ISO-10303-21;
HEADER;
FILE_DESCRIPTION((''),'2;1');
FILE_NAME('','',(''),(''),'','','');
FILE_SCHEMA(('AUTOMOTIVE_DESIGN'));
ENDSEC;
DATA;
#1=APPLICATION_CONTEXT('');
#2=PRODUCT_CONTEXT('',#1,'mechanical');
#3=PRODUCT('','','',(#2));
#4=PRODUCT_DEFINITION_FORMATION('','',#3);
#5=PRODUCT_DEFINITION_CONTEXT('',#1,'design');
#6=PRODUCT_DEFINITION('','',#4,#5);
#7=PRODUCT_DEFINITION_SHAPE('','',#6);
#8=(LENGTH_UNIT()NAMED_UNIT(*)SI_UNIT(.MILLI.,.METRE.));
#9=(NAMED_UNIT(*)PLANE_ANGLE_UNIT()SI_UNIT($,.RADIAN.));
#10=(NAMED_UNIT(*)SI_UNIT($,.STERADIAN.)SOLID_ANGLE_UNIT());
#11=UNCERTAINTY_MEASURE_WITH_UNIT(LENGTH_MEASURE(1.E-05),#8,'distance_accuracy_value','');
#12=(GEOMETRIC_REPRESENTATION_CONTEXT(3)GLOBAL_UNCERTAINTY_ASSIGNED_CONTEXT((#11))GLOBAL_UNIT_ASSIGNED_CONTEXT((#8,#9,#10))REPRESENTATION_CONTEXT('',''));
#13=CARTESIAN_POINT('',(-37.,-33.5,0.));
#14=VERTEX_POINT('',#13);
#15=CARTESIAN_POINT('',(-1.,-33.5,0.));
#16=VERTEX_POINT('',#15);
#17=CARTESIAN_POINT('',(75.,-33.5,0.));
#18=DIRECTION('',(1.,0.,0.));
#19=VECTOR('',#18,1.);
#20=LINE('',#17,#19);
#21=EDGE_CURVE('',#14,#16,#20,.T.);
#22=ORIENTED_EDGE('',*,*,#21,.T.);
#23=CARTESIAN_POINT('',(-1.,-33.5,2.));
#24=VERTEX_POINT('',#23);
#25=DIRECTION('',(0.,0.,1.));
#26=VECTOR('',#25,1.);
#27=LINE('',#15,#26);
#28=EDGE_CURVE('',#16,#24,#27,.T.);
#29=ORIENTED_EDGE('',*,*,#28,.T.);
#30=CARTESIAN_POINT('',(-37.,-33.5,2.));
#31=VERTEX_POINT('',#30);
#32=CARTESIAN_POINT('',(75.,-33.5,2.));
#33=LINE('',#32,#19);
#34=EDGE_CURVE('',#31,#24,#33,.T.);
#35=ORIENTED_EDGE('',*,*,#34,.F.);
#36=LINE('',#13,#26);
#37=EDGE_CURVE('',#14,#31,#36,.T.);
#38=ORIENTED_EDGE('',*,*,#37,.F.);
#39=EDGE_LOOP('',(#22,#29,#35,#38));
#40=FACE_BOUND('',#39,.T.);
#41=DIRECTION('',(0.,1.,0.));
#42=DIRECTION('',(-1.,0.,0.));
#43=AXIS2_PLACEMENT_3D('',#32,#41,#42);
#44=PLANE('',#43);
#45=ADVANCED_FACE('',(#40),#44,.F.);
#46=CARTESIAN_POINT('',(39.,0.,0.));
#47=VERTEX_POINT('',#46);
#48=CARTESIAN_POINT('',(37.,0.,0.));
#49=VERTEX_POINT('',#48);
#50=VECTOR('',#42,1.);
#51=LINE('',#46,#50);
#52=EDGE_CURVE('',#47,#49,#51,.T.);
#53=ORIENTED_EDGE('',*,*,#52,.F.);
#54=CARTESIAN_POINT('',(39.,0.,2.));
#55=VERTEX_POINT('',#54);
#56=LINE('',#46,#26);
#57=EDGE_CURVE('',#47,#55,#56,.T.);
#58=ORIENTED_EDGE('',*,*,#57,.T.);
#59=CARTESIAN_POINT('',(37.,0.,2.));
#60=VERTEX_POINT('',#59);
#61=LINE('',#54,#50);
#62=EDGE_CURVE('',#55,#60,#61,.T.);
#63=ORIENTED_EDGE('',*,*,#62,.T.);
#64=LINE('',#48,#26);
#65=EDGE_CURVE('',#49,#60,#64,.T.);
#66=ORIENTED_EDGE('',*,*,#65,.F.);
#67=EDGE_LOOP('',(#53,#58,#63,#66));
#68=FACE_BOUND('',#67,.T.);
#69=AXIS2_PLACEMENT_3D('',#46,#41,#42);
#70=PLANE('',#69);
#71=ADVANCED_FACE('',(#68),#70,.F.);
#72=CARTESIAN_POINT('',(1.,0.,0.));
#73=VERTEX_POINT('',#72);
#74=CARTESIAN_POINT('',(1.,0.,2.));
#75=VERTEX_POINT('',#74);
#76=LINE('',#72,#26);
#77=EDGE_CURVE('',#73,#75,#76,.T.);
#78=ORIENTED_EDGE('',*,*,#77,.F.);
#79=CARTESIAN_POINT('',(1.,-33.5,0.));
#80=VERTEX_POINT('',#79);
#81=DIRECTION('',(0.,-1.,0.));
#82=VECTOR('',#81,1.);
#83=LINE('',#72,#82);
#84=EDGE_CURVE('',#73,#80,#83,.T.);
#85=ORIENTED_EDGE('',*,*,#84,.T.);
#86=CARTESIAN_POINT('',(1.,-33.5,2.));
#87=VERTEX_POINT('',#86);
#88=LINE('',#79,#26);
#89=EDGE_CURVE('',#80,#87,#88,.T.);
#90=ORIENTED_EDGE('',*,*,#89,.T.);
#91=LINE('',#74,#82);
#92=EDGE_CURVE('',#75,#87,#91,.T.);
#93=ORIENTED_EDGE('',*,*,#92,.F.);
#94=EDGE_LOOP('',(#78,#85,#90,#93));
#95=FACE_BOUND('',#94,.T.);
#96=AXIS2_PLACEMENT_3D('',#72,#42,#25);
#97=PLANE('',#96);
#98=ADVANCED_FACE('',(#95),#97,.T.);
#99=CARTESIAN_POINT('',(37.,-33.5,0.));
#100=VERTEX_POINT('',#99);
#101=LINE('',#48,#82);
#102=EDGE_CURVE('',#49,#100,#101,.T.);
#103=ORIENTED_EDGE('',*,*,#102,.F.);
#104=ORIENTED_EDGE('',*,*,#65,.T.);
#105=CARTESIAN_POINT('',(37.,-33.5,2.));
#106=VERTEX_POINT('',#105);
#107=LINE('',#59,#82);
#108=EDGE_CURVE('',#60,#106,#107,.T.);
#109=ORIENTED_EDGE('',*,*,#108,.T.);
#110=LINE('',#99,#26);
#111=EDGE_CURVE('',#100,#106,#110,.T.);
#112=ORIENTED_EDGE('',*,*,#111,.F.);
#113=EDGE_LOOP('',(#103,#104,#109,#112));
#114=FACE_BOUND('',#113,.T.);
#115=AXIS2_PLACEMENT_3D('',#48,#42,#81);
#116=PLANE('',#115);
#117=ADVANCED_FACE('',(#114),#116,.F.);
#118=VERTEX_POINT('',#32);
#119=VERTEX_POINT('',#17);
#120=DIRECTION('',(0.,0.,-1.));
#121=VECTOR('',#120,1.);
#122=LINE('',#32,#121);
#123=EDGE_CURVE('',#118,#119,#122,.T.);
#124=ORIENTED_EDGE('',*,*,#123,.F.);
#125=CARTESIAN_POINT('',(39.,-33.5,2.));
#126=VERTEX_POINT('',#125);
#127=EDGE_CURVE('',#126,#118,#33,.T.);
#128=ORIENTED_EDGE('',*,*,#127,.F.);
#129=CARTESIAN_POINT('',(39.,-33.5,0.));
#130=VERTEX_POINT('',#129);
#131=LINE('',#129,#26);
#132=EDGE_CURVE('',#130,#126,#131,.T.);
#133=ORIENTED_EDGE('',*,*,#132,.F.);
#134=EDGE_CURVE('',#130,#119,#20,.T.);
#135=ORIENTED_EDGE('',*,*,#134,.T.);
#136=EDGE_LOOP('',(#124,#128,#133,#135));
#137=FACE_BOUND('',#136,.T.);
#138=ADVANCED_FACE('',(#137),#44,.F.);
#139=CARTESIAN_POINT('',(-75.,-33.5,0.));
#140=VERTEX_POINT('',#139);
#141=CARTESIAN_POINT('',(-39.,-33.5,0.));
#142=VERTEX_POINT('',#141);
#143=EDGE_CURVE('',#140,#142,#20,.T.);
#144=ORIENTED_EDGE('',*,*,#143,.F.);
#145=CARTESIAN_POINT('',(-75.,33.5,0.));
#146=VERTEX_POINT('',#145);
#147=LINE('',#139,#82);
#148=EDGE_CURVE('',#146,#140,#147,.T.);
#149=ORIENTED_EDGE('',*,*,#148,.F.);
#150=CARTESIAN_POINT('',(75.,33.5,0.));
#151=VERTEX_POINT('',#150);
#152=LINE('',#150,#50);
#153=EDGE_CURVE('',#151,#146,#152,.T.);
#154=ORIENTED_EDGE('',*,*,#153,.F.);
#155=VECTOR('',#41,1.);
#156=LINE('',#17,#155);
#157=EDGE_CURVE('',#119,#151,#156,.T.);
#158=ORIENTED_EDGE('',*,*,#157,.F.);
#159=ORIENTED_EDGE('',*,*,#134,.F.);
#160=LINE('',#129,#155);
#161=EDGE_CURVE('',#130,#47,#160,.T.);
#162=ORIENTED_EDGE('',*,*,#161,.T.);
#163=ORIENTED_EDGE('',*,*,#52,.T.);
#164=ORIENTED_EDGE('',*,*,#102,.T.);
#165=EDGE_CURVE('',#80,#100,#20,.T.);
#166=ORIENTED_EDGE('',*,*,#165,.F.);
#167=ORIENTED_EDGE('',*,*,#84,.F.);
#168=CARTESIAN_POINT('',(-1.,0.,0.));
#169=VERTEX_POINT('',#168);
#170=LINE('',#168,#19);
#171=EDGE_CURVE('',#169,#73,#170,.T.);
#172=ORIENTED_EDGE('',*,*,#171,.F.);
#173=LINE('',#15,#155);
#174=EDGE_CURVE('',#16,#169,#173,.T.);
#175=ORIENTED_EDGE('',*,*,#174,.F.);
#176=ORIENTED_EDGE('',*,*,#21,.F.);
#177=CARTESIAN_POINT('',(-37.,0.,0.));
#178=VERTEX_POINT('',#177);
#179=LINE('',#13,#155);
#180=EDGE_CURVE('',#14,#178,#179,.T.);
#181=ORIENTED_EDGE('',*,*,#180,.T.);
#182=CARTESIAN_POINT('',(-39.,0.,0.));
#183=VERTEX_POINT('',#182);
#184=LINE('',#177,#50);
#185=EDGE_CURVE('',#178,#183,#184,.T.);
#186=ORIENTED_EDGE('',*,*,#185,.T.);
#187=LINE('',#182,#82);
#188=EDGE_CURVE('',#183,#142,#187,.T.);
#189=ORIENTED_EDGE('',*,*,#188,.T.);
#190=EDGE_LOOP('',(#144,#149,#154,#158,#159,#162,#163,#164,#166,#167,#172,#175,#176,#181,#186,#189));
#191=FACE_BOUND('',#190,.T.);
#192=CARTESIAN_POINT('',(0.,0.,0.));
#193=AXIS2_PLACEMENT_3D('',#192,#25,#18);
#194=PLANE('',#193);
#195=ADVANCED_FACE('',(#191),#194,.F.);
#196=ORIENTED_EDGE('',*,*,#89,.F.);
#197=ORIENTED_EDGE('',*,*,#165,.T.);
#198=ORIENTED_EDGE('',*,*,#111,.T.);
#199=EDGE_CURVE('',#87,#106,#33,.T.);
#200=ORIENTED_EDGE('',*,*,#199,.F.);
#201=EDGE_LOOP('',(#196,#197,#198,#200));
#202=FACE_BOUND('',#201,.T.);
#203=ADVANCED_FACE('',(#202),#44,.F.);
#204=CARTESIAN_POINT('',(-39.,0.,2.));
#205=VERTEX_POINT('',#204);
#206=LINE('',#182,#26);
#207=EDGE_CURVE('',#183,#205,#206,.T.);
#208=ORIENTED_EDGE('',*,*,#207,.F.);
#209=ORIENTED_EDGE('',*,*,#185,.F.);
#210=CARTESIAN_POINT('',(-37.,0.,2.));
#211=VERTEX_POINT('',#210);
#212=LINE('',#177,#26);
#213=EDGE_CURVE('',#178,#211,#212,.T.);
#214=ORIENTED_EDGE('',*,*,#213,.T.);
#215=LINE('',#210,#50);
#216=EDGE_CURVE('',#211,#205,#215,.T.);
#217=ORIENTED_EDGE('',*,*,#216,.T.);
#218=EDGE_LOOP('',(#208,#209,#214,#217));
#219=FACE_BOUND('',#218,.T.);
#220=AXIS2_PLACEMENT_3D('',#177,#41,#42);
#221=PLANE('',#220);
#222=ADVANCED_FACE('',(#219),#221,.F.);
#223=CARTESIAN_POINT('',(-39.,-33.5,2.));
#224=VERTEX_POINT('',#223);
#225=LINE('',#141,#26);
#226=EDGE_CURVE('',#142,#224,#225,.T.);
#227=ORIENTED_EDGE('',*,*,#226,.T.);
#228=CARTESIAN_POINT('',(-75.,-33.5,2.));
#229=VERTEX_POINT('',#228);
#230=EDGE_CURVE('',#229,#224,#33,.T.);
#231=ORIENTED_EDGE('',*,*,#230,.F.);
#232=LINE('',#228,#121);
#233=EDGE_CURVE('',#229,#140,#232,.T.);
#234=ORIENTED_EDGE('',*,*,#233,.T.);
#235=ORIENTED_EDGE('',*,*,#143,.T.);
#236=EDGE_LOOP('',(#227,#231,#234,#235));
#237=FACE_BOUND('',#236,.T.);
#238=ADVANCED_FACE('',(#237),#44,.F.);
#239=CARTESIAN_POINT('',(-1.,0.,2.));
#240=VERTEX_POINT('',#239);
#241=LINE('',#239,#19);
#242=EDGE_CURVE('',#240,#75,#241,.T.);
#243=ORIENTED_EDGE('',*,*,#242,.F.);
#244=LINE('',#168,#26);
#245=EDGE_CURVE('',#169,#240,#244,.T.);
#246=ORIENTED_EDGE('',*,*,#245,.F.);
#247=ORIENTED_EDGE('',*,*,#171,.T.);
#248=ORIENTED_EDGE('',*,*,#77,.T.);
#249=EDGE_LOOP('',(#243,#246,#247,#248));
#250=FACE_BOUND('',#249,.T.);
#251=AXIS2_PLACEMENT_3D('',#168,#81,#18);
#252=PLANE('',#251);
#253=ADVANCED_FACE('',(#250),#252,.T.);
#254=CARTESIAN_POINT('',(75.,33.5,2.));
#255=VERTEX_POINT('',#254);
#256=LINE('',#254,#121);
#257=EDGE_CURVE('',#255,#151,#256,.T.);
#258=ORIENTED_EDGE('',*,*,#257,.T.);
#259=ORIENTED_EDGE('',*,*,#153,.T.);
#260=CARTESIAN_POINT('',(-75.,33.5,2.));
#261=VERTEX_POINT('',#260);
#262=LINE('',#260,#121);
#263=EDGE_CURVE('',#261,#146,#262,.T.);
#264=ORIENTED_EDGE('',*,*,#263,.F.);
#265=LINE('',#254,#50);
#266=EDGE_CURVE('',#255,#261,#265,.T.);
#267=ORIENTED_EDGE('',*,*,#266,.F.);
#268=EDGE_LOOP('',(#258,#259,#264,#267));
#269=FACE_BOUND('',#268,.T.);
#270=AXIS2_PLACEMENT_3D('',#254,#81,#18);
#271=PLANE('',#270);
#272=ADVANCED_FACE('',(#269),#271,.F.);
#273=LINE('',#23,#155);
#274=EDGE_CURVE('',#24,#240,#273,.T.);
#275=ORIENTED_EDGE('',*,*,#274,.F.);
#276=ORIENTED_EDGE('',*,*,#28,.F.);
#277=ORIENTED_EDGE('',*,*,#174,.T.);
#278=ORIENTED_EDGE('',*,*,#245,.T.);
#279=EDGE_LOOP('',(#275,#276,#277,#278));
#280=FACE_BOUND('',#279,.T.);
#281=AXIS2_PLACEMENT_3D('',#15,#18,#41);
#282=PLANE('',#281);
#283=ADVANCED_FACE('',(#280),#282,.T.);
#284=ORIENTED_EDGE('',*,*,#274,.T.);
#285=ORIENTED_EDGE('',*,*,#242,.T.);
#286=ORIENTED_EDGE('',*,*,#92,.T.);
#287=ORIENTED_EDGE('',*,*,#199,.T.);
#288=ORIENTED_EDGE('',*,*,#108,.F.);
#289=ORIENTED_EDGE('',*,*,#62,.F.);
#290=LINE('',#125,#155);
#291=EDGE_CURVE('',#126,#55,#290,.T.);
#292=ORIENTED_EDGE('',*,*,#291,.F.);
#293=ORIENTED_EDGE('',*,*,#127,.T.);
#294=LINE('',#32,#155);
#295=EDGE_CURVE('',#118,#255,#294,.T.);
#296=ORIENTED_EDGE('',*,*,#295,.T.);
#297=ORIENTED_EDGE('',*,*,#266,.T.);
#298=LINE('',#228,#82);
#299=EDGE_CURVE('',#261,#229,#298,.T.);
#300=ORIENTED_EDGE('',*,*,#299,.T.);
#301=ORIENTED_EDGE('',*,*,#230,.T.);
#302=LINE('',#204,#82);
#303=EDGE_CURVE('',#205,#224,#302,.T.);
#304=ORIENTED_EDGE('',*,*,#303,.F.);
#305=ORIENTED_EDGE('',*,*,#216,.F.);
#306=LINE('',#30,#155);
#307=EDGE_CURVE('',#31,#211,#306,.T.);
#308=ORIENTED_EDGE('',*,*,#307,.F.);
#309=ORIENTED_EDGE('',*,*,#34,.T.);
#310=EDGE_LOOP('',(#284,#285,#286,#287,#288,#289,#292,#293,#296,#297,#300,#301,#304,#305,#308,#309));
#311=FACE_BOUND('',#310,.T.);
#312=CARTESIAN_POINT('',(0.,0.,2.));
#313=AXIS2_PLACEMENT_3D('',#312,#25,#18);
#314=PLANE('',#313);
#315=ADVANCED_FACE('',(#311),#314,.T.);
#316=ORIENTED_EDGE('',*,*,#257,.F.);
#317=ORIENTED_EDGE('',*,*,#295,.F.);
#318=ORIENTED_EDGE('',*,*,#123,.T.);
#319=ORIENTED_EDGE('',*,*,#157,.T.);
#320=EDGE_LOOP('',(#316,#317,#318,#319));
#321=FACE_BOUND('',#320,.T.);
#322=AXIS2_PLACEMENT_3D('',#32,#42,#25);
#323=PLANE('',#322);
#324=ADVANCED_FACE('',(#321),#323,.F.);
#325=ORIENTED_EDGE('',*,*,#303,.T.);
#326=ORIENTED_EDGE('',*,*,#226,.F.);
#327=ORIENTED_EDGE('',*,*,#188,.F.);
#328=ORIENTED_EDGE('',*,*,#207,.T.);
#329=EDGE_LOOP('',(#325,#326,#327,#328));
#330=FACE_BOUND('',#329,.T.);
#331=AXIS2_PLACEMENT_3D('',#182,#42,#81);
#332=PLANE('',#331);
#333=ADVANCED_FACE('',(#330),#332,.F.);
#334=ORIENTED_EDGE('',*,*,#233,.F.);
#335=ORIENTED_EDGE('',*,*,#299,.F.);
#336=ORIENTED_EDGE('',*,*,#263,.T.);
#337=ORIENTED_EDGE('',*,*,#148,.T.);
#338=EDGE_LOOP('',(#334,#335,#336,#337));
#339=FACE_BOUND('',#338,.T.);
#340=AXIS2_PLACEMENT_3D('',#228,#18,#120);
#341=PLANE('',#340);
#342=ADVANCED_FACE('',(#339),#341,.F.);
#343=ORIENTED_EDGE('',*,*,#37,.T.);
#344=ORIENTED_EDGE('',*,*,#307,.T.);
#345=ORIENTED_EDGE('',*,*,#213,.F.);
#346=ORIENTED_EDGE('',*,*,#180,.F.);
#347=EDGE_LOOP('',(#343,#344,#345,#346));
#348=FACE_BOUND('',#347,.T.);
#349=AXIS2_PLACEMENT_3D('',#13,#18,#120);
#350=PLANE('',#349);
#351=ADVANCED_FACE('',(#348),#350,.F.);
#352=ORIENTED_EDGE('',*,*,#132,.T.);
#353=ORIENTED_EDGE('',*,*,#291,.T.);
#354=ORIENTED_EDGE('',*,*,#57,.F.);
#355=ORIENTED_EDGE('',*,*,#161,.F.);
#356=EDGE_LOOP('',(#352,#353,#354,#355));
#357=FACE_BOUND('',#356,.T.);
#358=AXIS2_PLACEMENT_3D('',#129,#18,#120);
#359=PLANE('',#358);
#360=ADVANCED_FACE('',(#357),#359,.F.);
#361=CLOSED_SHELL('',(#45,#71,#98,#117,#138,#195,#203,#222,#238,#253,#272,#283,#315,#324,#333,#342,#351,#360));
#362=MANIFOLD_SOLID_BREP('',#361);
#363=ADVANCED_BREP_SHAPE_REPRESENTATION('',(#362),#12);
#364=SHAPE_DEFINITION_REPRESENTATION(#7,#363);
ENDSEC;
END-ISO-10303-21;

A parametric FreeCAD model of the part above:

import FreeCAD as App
import Part
import Sketcher
from FreeCAD import Vector
Q = App.Units.Quantity

doc = App.newDocument("Part")
body = doc.addObject("PartDesign::Body", "Body")

sketch1 = doc.addObject("Sketcher::SketchObject", "Sketch")
body.addObject(sketch1)
sketch1.AttachmentSupport = (doc.XY_Plane, [""])
sketch1.MapMode = "FlatFace"
sketch1.addGeometry([
    Part.LineSegment(Vector(-75, 34, 0), Vector(-75, -34, 0)),
    Part.LineSegment(Vector(-75, -34, 0), Vector(75, -34, 0)),
    Part.LineSegment(Vector(75, -34, 0), Vector(75, 34, 0)),
    Part.LineSegment(Vector(75, 34, 0), Vector(-75, 34, 0)),
], False)
sketch1.addConstraint([
    Sketcher.Constraint("Coincident", 0, 2, 1, 1),
    Sketcher.Constraint("Coincident", 1, 2, 2, 1),
    Sketcher.Constraint("Coincident", 2, 2, 3, 1),
    Sketcher.Constraint("Coincident", 3, 2, 0, 1),
    Sketcher.Constraint("Vertical", 0),
    Sketcher.Constraint("Horizontal", 1),
    Sketcher.Constraint("Vertical", 2),
    Sketcher.Constraint("Horizontal", 3),
    Sketcher.Constraint("Symmetric", 0, 2, 2, 2, -1, 1),
    Sketcher.Constraint("DistanceX", 1, 1, 1, 2, Q("150 mm")),
    Sketcher.Constraint("DistanceY", 0, 2, 0, 1, Q("67 mm")),
])
pad1 = doc.addObject("PartDesign::Pad", "Pad")
body.addObject(pad1)
pad1.Profile = sketch1
pad1.Length = 2

sketch2 = doc.addObject("Sketcher::SketchObject", "Sketch001")
body.addObject(sketch2)
sketch2.AttachmentSupport = (doc.XY_Plane, [""])
sketch2.MapMode = "FlatFace"
sketch2.AttachmentOffset = App.Placement(Vector(0, 0, 2), App.Rotation())
sketch2.addGeometry([
    Part.LineSegment(Vector(-39, 0, 0), Vector(-39, -33.5, 0)),
    Part.LineSegment(Vector(-39, -33.5, 0), Vector(-37, -33.5, 0)),
    Part.LineSegment(Vector(-37, -33.5, 0), Vector(-37, 0, 0)),
    Part.LineSegment(Vector(-37, 0, 0), Vector(-39, 0, 0)),
    Part.LineSegment(Vector(-1, 0, 0), Vector(-1, -33.5, 0)),
    Part.LineSegment(Vector(-1, -33.5, 0), Vector(1, -33.5, 0)),
    Part.LineSegment(Vector(1, -33.5, 0), Vector(1, 0, 0)),
    Part.LineSegment(Vector(1, 0, 0), Vector(-1, 0, 0)),
    Part.LineSegment(Vector(37, 0, 0), Vector(37, -33.5, 0)),
    Part.LineSegment(Vector(37, -33.5, 0), Vector(39, -33.5, 0)),
    Part.LineSegment(Vector(39, -33.5, 0), Vector(39, 0, 0)),
    Part.LineSegment(Vector(39, 0, 0), Vector(37, 0, 0)),
], False)
sketch2.addConstraint([
    Sketcher.Constraint("Coincident", 0, 2, 1, 1),
    Sketcher.Constraint("Coincident", 1, 2, 2, 1),
    Sketcher.Constraint("Coincident", 2, 2, 3, 1),
    Sketcher.Constraint("Coincident", 3, 2, 0, 1),
    Sketcher.Constraint("Coincident", 4, 2, 5, 1),
    Sketcher.Constraint("Coincident", 5, 2, 6, 1),
    Sketcher.Constraint("Coincident", 6, 2, 7, 1),
    Sketcher.Constraint("Coincident", 7, 2, 4, 1),
    Sketcher.Constraint("Coincident", 8, 2, 9, 1),
    Sketcher.Constraint("Coincident", 9, 2, 10, 1),
    Sketcher.Constraint("Coincident", 10, 2, 11, 1),
    Sketcher.Constraint("Coincident", 11, 2, 8, 1),
    Sketcher.Constraint("Vertical", 0),
    Sketcher.Constraint("Horizontal", 1),
    Sketcher.Constraint("Vertical", 2),
    Sketcher.Constraint("Horizontal", 3),
    Sketcher.Constraint("Vertical", 4),
    Sketcher.Constraint("Horizontal", 5),
    Sketcher.Constraint("Vertical", 6),
    Sketcher.Constraint("Horizontal", 7),
    Sketcher.Constraint("Vertical", 8),
    Sketcher.Constraint("Horizontal", 9),
    Sketcher.Constraint("Vertical", 10),
    Sketcher.Constraint("Horizontal", 11),
    Sketcher.Constraint("Symmetric", 6, 2, 7, 2, -1, 1),
    Sketcher.Constraint("Symmetric", 3, 2, 10, 2, -1, 1),
    Sketcher.Constraint("Symmetric", 1, 2, 8, 2, -2),
    Sketcher.Constraint("PointOnObject", 2, 2, -1),
    Sketcher.Constraint("Horizontal", 1, 2, 4, 2),
    Sketcher.Constraint("Equal", 3, 5),
    Sketcher.Constraint("DistanceX", 1, 1, 1, 2, Q("2 mm")),
    Sketcher.Constraint("DistanceY", 0, 2, 0, 1, Q("33.5 mm")),
    Sketcher.Constraint("DistanceX", 0, 2, -1, 1, Q("39 mm")),
])
pocket1 = doc.addObject("PartDesign::Pocket", "Pocket")
body.addObject(pocket1)
pocket1.Profile = sketch2
pocket1.Type = "ThroughAll"

doc.recompute()
